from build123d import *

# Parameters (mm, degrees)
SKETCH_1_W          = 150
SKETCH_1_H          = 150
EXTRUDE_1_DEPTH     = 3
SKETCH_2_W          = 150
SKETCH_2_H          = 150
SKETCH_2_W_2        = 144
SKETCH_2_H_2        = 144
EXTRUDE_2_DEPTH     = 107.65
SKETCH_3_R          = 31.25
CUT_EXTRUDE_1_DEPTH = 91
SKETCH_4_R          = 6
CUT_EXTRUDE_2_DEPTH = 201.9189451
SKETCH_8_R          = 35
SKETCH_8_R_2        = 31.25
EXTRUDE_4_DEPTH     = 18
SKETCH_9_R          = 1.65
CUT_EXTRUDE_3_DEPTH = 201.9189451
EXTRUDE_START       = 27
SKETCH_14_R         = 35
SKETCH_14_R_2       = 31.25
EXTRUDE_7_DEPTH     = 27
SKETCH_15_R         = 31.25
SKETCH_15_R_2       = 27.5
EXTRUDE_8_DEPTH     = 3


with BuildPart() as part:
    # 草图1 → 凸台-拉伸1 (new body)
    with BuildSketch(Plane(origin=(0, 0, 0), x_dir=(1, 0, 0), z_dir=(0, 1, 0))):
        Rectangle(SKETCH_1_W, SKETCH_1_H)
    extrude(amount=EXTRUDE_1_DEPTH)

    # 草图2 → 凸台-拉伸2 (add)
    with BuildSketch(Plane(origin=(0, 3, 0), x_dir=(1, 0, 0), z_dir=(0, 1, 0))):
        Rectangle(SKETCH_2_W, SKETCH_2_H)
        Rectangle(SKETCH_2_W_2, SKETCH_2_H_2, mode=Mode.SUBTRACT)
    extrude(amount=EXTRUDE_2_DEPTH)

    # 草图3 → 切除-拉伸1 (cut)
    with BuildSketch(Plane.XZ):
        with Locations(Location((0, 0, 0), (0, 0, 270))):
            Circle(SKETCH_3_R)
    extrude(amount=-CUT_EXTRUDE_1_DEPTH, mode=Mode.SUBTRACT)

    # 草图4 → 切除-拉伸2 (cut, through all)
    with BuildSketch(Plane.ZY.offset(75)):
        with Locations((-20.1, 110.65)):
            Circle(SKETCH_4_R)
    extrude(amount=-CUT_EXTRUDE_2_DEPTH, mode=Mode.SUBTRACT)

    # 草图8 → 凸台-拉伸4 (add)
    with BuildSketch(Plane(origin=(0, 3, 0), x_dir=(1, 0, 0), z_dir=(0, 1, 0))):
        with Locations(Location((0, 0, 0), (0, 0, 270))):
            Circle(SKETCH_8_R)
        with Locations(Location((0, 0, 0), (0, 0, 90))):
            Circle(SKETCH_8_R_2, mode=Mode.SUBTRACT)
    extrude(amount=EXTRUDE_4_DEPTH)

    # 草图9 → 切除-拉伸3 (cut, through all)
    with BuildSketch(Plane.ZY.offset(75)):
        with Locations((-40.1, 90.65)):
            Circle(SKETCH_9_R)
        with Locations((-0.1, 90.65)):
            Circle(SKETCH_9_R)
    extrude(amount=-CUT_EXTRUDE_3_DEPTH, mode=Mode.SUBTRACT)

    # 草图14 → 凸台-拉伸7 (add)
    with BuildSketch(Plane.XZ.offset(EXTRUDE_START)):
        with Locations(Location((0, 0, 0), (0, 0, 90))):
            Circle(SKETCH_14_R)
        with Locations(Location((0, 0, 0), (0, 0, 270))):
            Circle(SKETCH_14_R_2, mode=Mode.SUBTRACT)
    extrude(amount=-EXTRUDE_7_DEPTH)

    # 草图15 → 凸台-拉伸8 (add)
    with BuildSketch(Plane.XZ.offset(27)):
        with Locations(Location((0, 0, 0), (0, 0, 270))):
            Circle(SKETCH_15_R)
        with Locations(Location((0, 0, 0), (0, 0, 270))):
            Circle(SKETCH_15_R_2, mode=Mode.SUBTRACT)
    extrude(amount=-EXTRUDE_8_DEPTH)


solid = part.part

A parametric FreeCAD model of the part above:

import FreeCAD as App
import Part
import Sketcher

V = App.Vector
Q = App.Units.Quantity

doc = App.newDocument("Part")
body = doc.addObject("PartDesign::Body", "Body")

sketch1 = doc.addObject("Sketcher::SketchObject", "Sketch")
body.addObject(sketch1)
sketch1.AttachmentSupport = (doc.XZ_Plane, [""])
sketch1.MapMode = "FlatFace"
sketch1.addGeometry([
    Part.LineSegment(V(-75, -75, 0), V(-75, 75, 0)),
    Part.LineSegment(V(-75, 75, 0), V(75, 75, 0)),
    Part.LineSegment(V(75, 75, 0), V(75, -75, 0)),
    Part.LineSegment(V(75, -75, 0), V(-75, -75, 0)),
], False)
sketch1.addConstraint([
    Sketcher.Constraint("Coincident", 0, 2, 1, 1),
    Sketcher.Constraint("Coincident", 1, 2, 2, 1),
    Sketcher.Constraint("Coincident", 2, 2, 3, 1),
    Sketcher.Constraint("Coincident", 3, 2, 0, 1),
    Sketcher.Constraint("Vertical", 0),
    Sketcher.Constraint("Horizontal", 1),
    Sketcher.Constraint("Vertical", 2),
    Sketcher.Constraint("Horizontal", 3),
    Sketcher.Constraint("Symmetric", 0, 2, 2, 2, -1, 1),
    Sketcher.Constraint("Equal", 3, 0),
    Sketcher.Constraint("DistanceX", 1, 1, 1, 2, Q("150 mm")),
])
pad1 = doc.addObject("PartDesign::Pad", "Pad")
body.addObject(pad1)
pad1.Profile = sketch1
pad1.Length = 3
pad1.Reversed = True

sketch2 = doc.addObject("Sketcher::SketchObject", "Sketch001")
body.addObject(sketch2)
sketch2.AttachmentSupport = (doc.XZ_Plane, [""])
sketch2.MapMode = "FlatFace"
sketch2.AttachmentOffset = App.Placement(V(0, 0, -3), App.Rotation())
sketch2.addGeometry([
    Part.LineSegment(V(-75, -75, 0), V(-75, 75, 0)),
    Part.LineSegment(V(-75, 75, 0), V(75, 75, 0)),
    Part.LineSegment(V(75, 75, 0), V(75, -75, 0)),
    Part.LineSegment(V(75, -75, 0), V(-75, -75, 0)),
    Part.LineSegment(V(72, 72, 0), V(-72, 72, 0)),
    Part.LineSegment(V(-72, 72, 0), V(-72, -72, 0)),
    Part.LineSegment(V(-72, -72, 0), V(72, -72, 0)),
    Part.LineSegment(V(72, -72, 0), V(72, 72, 0)),
], False)
sketch2.addConstraint([
    Sketcher.Constraint("Coincident", 0, 2, 1, 1),
    Sketcher.Constraint("Coincident", 1, 2, 2, 1),
    Sketcher.Constraint("Coincident", 2, 2, 3, 1),
    Sketcher.Constraint("Coincident", 3, 2, 0, 1),
    Sketcher.Constraint("Coincident", 4, 2, 5, 1),
    Sketcher.Constraint("Coincident", 5, 2, 6, 1),
    Sketcher.Constraint("Coincident", 6, 2, 7, 1),
    Sketcher.Constraint("Coincident", 7, 2, 4, 1),
    Sketcher.Constraint("Vertical", 0),
    Sketcher.Constraint("Horizontal", 1),
    Sketcher.Constraint("Vertical", 2),
    Sketcher.Constraint("Horizontal", 3),
    Sketcher.Constraint("Horizontal", 4),
    Sketcher.Constraint("Vertical", 5),
    Sketcher.Constraint("Horizontal", 6),
    Sketcher.Constraint("Vertical", 7),
    Sketcher.Constraint("Symmetric", 0, 2, 2, 2, -1, 1),
    Sketcher.Constraint("Symmetric", 4, 2, 6, 2, -1, 1),
    Sketcher.Constraint("Equal", 3, 0),
    Sketcher.Constraint("Equal", 6, 5),
    Sketcher.Constraint("DistanceX", 1, 1, 1, 2, Q("150 mm")),
    Sketcher.Constraint("DistanceX", 4, 2, 4, 1, Q("144 mm")),
])
pad2 = doc.addObject("PartDesign::Pad", "Pad001")
body.addObject(pad2)
pad2.Profile = sketch2
pad2.Length = 107.65
pad2.Reversed = True

sketch3 = doc.addObject("Sketcher::SketchObject", "Sketch002")
body.addObject(sketch3)
sketch3.AttachmentSupport = (doc.XZ_Plane, [""])
sketch3.MapMode = "FlatFace"
sketch3.addGeometry(Part.Circle(V(0, 0, 0), V(0, 0, 1), 31.25), False)
sketch3.addConstraint([
    Sketcher.Constraint("Coincident", 0, 3, -1, 1),
    Sketcher.Constraint("Diameter", 0, Q("62.5 mm")),
])
pocket1 = doc.addObject("PartDesign::Pocket", "Pocket")
body.addObject(pocket1)
pocket1.Profile = sketch3
pocket1.Length = 91

sketch4 = doc.addObject("Sketcher::SketchObject", "Sketch003")
body.addObject(sketch4)
sketch4.AttachmentSupport = (doc.YZ_Plane, [""])
sketch4.MapMode = "FlatFace"
sketch4.AttachmentOffset = App.Placement(V(0, 0, -75), App.Rotation())
sketch4.addGeometry(Part.Circle(V(110.65, -20.1, 0), V(0, 0, 1), 6), False)
sketch4.addConstraint([
    Sketcher.Constraint("Diameter", 0, Q("12 mm")),
    Sketcher.Constraint("DistanceY", 0, 3, -1, 1, Q("20.1 mm")),
    Sketcher.Constraint("DistanceX", -1, 1, 0, 3, Q("110.65 mm")),
])
pocket2 = doc.addObject("PartDesign::Pocket", "Pocket001")
body.addObject(pocket2)
pocket2.Profile = sketch4
pocket2.Type = "ThroughAll"
pocket2.Reversed = True

sketch5 = doc.addObject("Sketcher::SketchObject", "Sketch004")
body.addObject(sketch5)
sketch5.AttachmentSupport = (doc.XZ_Plane, [""])
sketch5.MapMode = "FlatFace"
sketch5.AttachmentOffset = App.Placement(V(0, 0, -3), App.Rotation())
sketch5.addGeometry([
    Part.Circle(V(0, 0, 0), V(0, 0, 1), 35),
    Part.Circle(V(0, 0, 0), V(0, 0, 1), 31.25),
], False)
sketch5.addConstraint([
    Sketcher.Constraint("Coincident", 0, 3, -1, 1),
    Sketcher.Constraint("Coincident", 1, 3, -1, 1),
    Sketcher.Constraint("Diameter", 0, Q("70 mm")),
    Sketcher.Constraint("Diameter", 1, Q("62.5 mm")),
])
pad3 = doc.addObject("PartDesign::Pad", "Pad002")
body.addObject(pad3)
pad3.Profile = sketch5
pad3.Length = 18
pad3.Reversed = True

sketch6 = doc.addObject("Sketcher::SketchObject", "Sketch005")
body.addObject(sketch6)
sketch6.AttachmentSupport = (doc.YZ_Plane, [""])
sketch6.MapMode = "FlatFace"
sketch6.AttachmentOffset = App.Placement(V(0, 0, -75), App.Rotation())
sketch6.addGeometry([
    Part.Circle(V(90.65, -40.1, 0), V(0, 0, 1), 1.65),
    Part.Circle(V(90.65, -0.1, 0), V(0, 0, 1), 1.65),
], False)
sketch6.addConstraint([
    Sketcher.Constraint("Equal", 0, 1),
    Sketcher.Constraint("Vertical", 0, 3, 1, 3),
    Sketcher.Constraint("Diameter", 0, Q("3.3 mm")),
    Sketcher.Constraint("DistanceY", 0, 3, 1, 3, Q("40 mm")),
    Sketcher.Constraint("DistanceY", 0, 3, -1, 1, Q("40.1 mm")),
    Sketcher.Constraint("DistanceX", -1, 1, 0, 3, Q("90.65 mm")),
])
pocket3 = doc.addObject("PartDesign::Pocket", "Pocket002")
body.addObject(pocket3)
pocket3.Profile = sketch6
pocket3.Type = "ThroughAll"
pocket3.Reversed = True

sketch7 = doc.addObject("Sketcher::SketchObject", "Sketch006")
body.addObject(sketch7)
sketch7.AttachmentSupport = (doc.XZ_Plane, [""])
sketch7.MapMode = "FlatFace"
sketch7.AttachmentOffset = App.Placement(V(0, 0, 27), App.Rotation())
sketch7.addGeometry([
    Part.Circle(V(0, 0, 0), V(0, 0, 1), 35),
    Part.Circle(V(0, 0, 0), V(0, 0, 1), 31.25),
], False)
sketch7.addConstraint([
    Sketcher.Constraint("Coincident", 0, 3, -1, 1),
    Sketcher.Constraint("Coincident", 1, 3, -1, 1),
    Sketcher.Constraint("Diameter", 0, Q("70 mm")),
    Sketcher.Constraint("Diameter", 1, Q("62.5 mm")),
])
pad4 = doc.addObject("PartDesign::Pad", "Pad003")
body.addObject(pad4)
pad4.Profile = sketch7
pad4.Length = 27
pad4.Reversed = True

sketch8 = doc.addObject("Sketcher::SketchObject", "Sketch007")
body.addObject(sketch8)
sketch8.AttachmentSupport = (doc.XZ_Plane, [""])
sketch8.MapMode = "FlatFace"
sketch8.AttachmentOffset = App.Placement(V(0, 0, 27), App.Rotation())
sketch8.addGeometry([
    Part.Circle(V(0, 0, 0), V(0, 0, 1), 31.25),
    Part.Circle(V(0, 0, 0), V(0, 0, 1), 27.5),
], False)
sketch8.addConstraint([
    Sketcher.Constraint("Coincident", 0, 3, -1, 1),
    Sketcher.Constraint("Coincident", 1, 3, -1, 1),
    Sketcher.Constraint("Diameter", 1, Q("55 mm")),
    Sketcher.Constraint("Diameter", 0, Q("62.5 mm")),
])
pad5 = doc.addObject("PartDesign::Pad", "Pad004")
body.addObject(pad5)
pad5.Profile = sketch8
pad5.Length = 3
pad5.Reversed = True

doc.recompute()
